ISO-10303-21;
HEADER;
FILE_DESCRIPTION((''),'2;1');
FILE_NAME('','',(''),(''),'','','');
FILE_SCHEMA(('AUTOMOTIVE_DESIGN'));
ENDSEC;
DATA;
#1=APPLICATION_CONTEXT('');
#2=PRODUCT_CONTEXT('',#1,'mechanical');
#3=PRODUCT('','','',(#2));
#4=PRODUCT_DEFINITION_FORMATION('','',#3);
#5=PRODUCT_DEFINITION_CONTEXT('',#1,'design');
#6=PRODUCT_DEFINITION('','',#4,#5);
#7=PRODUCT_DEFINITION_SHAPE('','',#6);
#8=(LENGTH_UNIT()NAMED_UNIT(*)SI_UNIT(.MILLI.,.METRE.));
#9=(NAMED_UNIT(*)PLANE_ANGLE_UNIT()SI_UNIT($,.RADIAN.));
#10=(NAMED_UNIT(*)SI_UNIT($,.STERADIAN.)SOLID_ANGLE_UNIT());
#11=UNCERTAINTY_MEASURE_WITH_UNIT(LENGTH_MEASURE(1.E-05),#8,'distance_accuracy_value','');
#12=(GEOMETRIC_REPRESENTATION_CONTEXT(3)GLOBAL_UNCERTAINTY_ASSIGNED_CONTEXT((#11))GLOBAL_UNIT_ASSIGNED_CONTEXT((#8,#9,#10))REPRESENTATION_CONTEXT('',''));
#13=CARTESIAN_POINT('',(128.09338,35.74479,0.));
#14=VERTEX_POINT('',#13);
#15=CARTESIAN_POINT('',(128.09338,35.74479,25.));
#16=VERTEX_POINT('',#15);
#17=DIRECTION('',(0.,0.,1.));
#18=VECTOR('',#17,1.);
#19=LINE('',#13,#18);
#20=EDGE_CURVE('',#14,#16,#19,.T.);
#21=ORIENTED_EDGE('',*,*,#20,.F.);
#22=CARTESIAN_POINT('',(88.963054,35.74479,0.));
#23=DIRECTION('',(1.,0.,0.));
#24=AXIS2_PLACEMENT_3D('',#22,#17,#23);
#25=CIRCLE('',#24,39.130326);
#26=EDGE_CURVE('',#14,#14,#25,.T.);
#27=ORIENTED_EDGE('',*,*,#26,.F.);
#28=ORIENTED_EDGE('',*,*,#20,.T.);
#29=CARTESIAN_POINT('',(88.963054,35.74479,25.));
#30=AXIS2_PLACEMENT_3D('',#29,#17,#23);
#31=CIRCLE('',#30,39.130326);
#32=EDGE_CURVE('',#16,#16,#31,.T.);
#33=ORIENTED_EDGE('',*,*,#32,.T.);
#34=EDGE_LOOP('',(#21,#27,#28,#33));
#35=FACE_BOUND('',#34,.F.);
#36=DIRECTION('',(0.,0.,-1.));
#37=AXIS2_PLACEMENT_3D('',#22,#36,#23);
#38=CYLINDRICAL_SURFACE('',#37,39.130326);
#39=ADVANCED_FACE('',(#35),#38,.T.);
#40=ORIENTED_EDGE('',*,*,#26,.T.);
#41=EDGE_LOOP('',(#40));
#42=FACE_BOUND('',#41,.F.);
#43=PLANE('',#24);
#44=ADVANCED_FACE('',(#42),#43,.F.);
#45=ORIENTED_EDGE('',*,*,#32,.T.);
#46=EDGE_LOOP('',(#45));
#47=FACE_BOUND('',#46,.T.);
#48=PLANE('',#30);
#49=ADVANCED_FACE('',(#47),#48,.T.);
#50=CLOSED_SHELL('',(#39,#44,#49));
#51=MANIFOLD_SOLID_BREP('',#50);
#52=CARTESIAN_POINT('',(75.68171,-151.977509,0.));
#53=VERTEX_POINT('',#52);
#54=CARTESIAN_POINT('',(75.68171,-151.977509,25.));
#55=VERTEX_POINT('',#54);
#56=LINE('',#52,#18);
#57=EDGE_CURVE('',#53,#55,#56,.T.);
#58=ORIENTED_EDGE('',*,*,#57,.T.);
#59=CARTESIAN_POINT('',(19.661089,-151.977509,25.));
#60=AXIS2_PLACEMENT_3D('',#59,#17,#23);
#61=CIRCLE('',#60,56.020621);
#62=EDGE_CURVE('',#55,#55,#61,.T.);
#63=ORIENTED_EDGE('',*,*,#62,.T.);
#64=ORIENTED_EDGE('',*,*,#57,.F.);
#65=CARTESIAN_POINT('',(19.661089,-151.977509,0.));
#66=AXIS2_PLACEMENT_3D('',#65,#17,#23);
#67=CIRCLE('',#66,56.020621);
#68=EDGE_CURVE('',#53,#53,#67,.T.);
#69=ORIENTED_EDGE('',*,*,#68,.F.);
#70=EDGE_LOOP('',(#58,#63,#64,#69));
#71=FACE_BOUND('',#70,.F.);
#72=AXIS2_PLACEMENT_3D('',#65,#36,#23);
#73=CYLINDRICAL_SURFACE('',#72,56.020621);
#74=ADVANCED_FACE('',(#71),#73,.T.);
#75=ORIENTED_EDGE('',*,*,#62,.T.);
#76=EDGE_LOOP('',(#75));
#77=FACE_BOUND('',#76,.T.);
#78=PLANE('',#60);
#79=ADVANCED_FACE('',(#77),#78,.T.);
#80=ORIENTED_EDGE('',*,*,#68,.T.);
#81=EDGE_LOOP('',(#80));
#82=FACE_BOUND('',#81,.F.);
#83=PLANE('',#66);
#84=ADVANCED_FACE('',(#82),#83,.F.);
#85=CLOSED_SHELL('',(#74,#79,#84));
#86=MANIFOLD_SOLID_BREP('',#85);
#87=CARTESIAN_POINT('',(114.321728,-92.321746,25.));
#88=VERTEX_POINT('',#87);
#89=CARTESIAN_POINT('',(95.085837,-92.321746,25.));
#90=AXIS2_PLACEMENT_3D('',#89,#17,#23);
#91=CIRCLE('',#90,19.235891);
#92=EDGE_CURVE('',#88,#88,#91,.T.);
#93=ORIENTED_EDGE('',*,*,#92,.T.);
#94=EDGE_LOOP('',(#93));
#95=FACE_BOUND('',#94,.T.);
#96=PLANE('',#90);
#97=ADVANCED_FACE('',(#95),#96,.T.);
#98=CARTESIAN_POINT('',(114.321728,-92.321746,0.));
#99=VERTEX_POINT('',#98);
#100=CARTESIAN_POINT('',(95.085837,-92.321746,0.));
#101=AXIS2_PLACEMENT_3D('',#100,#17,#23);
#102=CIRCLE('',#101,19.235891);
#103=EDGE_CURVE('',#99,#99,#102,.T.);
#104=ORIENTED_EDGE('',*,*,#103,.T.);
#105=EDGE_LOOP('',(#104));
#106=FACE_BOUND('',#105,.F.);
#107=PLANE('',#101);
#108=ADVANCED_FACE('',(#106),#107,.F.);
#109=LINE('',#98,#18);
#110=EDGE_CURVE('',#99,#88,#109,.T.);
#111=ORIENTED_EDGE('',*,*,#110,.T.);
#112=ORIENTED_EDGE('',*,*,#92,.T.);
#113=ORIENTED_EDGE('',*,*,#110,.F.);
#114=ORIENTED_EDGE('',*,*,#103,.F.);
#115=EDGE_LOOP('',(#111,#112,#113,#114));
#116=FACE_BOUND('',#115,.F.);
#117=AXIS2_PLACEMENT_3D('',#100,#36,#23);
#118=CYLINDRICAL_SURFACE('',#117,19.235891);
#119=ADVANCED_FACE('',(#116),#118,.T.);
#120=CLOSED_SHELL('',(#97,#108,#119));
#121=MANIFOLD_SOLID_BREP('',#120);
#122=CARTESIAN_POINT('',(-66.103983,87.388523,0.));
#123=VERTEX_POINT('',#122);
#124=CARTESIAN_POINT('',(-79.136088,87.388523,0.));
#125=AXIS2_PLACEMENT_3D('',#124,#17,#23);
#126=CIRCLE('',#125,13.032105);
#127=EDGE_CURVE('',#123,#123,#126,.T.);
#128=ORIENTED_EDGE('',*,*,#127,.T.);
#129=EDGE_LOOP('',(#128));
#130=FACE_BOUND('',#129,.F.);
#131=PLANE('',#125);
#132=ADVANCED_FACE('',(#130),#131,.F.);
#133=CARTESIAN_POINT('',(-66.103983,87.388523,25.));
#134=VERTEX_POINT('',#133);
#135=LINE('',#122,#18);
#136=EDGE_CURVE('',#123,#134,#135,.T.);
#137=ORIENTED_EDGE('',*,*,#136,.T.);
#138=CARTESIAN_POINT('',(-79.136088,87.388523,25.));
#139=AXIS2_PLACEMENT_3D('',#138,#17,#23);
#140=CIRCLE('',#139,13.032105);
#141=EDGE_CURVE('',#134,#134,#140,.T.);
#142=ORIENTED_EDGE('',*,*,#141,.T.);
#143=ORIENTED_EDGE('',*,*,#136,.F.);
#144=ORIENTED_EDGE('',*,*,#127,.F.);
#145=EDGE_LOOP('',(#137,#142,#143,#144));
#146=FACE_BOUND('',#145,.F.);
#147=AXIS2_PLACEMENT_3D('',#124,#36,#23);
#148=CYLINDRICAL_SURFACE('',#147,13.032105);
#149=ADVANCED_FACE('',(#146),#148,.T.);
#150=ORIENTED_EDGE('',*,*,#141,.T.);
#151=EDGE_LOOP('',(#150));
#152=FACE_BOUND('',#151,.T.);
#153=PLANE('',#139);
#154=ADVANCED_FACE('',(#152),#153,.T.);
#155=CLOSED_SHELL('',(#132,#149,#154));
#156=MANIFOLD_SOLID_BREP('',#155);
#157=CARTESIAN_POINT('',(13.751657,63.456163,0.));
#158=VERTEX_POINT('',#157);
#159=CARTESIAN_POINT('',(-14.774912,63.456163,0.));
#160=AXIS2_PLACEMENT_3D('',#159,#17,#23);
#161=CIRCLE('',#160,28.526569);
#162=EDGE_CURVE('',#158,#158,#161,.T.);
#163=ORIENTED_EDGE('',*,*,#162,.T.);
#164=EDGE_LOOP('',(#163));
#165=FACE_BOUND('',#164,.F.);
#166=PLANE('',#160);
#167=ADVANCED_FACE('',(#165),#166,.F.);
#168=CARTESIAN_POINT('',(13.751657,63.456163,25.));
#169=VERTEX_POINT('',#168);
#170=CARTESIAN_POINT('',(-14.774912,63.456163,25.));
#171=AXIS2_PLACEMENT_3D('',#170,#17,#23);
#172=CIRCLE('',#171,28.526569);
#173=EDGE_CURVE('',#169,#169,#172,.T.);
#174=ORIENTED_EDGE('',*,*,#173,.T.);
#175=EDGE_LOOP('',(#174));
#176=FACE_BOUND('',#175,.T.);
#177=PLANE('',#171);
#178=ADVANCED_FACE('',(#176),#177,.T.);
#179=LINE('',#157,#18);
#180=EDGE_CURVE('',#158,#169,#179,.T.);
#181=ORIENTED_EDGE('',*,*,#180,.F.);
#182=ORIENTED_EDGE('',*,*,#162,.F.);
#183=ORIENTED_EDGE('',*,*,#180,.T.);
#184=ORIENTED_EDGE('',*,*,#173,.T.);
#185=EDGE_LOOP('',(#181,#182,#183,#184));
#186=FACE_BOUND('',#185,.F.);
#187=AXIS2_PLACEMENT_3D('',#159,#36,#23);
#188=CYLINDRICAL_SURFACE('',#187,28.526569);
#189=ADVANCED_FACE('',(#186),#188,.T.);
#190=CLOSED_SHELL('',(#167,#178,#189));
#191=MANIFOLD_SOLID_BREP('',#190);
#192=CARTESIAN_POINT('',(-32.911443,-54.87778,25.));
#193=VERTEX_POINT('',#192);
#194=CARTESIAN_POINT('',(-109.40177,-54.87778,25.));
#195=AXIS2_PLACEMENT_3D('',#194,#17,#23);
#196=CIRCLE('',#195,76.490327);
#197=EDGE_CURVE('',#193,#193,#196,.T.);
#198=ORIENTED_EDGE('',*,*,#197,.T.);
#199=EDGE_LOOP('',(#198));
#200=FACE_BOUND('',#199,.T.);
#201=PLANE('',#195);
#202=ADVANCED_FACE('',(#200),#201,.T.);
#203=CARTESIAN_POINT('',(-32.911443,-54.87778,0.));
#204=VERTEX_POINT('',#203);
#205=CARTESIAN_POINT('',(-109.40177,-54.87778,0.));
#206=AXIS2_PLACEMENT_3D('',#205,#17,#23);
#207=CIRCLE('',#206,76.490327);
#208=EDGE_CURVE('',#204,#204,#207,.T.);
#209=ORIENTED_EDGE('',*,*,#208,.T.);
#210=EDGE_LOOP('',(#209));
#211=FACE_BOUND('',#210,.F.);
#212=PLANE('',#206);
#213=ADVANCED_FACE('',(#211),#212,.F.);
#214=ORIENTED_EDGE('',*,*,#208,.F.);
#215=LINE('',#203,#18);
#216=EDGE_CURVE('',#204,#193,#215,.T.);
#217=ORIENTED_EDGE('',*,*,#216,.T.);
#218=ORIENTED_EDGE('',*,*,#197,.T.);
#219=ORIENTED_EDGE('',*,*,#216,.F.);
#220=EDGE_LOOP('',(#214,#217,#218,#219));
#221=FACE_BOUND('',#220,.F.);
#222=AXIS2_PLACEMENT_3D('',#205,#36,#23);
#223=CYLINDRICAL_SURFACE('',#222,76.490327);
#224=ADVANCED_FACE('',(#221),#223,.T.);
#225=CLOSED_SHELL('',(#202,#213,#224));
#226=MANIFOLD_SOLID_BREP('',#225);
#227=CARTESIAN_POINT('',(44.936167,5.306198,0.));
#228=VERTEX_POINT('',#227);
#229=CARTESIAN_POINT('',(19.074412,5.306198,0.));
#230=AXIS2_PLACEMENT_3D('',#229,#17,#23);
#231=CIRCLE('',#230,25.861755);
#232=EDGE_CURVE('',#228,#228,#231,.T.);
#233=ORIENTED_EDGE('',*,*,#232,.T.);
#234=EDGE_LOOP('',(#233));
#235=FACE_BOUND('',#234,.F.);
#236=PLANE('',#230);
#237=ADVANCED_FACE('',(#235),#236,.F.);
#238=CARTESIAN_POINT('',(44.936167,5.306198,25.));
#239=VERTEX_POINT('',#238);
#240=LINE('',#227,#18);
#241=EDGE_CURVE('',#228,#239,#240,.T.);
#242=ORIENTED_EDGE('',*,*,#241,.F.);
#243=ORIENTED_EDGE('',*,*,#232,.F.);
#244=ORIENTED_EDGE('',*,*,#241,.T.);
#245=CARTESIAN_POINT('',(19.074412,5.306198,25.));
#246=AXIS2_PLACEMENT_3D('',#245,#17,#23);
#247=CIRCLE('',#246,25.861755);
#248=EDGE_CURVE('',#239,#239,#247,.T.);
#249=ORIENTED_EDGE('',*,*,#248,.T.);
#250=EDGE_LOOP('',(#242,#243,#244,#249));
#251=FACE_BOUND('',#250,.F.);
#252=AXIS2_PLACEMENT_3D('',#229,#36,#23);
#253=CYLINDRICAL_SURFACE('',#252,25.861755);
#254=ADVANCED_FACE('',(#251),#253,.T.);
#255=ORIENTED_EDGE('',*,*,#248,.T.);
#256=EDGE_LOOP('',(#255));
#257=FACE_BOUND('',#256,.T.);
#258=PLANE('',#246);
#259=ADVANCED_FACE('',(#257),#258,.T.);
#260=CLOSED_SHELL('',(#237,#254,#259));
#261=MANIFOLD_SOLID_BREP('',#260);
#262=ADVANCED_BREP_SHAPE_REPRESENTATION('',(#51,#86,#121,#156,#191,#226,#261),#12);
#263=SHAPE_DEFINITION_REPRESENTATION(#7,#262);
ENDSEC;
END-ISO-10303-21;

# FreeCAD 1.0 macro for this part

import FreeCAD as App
import Part
import Sketcher

V = App.Vector
Q = App.Units.Quantity

doc = App.newDocument("Part")
body = doc.addObject("PartDesign::Body", "Body")
body.AllowCompound = True

sketch1 = body.newObject("Sketcher::SketchObject", "Sketch")
sketch1.AttachmentSupport = (doc.getObject("XY_Plane"), [""])
sketch1.MapMode = "FlatFace"
sketch1.addGeometry([
    Part.Circle(V(-79, 87, 0), V(0, 0, 1), 13),
    Part.Circle(V(-15, 63, 0), V(0, 0, 1), 29),
    Part.Circle(V(89, 36, 0), V(0, 0, 1), 39),
    Part.Circle(V(19, 5, 0), V(0, 0, 1), 26),
    Part.Circle(V(-109, -55, 0), V(0, 0, 1), 76),
    Part.Circle(V(95, -92, 0), V(0, 0, 1), 19),
    Part.Circle(V(20, -152, 0), V(0, 0, 1), 56),
], False)
sketch1.addConstraint([
    Sketcher.Constraint("Diameter", 0, Q("26.06421 mm")),
    Sketcher.Constraint("Diameter", 2, Q("78.260652 mm")),
    Sketcher.Constraint("Diameter", 3, Q("51.72351 mm")),
    Sketcher.Constraint("Diameter", 5, Q("38.471782 mm")),
    Sketcher.Constraint("Diameter", 6, Q("112.041242 mm")),
    Sketcher.Constraint("Diameter", 1, Q("57.053138 mm")),
    Sketcher.Constraint("Diameter", 4, Q("152.980654 mm")),
    Sketcher.Constraint("DistanceX", 1, 3, 6, 3, Q("34.436001 mm")),
    Sketcher.Constraint("DistanceY", -1, 1, 3, 3, Q("5.306198 mm")),
    Sketcher.Constraint("DistanceX", 0, 3, 3, 3, Q("98.2105 mm")),
    Sketcher.Constraint("DistanceY", 6, 3, 2, 3, Q("187.722299 mm")),
    Sketcher.Constraint("DistanceX", 0, 3, -1, 1, Q("79.136088 mm")),
    Sketcher.Constraint("DistanceY", -1, 1, 2, 3, Q("35.74479 mm")),
    Sketcher.Constraint("DistanceX", 4, 3, -1, 1, Q("109.40177 mm")),
    Sketcher.Constraint("DistanceY", 4, 3, -1, 1, Q("54.87778 mm")),
    Sketcher.Constraint("DistanceX", -1, 1, 6, 3, Q("19.661089 mm")),
    Sketcher.Constraint("DistanceY", 1, 3, 0, 3, Q("23.93236 mm")),
    Sketcher.Constraint("DistanceX", 0, 3, 2, 3, Q("168.099142 mm")),
    Sketcher.Constraint("DistanceX", 1, 3, 5, 3, Q("109.860749 mm")),
    Sketcher.Constraint("DistanceY", 5, 3, 1, 3, Q("155.777909 mm")),
    Sketcher.Constraint("DistanceY", 6, 3, 1, 3, Q("215.433672 mm")),
])
pad1 = body.newObject("PartDesign::Pad", "Pad")
pad1.Profile = sketch1
pad1.Length = 25

doc.recompute()
